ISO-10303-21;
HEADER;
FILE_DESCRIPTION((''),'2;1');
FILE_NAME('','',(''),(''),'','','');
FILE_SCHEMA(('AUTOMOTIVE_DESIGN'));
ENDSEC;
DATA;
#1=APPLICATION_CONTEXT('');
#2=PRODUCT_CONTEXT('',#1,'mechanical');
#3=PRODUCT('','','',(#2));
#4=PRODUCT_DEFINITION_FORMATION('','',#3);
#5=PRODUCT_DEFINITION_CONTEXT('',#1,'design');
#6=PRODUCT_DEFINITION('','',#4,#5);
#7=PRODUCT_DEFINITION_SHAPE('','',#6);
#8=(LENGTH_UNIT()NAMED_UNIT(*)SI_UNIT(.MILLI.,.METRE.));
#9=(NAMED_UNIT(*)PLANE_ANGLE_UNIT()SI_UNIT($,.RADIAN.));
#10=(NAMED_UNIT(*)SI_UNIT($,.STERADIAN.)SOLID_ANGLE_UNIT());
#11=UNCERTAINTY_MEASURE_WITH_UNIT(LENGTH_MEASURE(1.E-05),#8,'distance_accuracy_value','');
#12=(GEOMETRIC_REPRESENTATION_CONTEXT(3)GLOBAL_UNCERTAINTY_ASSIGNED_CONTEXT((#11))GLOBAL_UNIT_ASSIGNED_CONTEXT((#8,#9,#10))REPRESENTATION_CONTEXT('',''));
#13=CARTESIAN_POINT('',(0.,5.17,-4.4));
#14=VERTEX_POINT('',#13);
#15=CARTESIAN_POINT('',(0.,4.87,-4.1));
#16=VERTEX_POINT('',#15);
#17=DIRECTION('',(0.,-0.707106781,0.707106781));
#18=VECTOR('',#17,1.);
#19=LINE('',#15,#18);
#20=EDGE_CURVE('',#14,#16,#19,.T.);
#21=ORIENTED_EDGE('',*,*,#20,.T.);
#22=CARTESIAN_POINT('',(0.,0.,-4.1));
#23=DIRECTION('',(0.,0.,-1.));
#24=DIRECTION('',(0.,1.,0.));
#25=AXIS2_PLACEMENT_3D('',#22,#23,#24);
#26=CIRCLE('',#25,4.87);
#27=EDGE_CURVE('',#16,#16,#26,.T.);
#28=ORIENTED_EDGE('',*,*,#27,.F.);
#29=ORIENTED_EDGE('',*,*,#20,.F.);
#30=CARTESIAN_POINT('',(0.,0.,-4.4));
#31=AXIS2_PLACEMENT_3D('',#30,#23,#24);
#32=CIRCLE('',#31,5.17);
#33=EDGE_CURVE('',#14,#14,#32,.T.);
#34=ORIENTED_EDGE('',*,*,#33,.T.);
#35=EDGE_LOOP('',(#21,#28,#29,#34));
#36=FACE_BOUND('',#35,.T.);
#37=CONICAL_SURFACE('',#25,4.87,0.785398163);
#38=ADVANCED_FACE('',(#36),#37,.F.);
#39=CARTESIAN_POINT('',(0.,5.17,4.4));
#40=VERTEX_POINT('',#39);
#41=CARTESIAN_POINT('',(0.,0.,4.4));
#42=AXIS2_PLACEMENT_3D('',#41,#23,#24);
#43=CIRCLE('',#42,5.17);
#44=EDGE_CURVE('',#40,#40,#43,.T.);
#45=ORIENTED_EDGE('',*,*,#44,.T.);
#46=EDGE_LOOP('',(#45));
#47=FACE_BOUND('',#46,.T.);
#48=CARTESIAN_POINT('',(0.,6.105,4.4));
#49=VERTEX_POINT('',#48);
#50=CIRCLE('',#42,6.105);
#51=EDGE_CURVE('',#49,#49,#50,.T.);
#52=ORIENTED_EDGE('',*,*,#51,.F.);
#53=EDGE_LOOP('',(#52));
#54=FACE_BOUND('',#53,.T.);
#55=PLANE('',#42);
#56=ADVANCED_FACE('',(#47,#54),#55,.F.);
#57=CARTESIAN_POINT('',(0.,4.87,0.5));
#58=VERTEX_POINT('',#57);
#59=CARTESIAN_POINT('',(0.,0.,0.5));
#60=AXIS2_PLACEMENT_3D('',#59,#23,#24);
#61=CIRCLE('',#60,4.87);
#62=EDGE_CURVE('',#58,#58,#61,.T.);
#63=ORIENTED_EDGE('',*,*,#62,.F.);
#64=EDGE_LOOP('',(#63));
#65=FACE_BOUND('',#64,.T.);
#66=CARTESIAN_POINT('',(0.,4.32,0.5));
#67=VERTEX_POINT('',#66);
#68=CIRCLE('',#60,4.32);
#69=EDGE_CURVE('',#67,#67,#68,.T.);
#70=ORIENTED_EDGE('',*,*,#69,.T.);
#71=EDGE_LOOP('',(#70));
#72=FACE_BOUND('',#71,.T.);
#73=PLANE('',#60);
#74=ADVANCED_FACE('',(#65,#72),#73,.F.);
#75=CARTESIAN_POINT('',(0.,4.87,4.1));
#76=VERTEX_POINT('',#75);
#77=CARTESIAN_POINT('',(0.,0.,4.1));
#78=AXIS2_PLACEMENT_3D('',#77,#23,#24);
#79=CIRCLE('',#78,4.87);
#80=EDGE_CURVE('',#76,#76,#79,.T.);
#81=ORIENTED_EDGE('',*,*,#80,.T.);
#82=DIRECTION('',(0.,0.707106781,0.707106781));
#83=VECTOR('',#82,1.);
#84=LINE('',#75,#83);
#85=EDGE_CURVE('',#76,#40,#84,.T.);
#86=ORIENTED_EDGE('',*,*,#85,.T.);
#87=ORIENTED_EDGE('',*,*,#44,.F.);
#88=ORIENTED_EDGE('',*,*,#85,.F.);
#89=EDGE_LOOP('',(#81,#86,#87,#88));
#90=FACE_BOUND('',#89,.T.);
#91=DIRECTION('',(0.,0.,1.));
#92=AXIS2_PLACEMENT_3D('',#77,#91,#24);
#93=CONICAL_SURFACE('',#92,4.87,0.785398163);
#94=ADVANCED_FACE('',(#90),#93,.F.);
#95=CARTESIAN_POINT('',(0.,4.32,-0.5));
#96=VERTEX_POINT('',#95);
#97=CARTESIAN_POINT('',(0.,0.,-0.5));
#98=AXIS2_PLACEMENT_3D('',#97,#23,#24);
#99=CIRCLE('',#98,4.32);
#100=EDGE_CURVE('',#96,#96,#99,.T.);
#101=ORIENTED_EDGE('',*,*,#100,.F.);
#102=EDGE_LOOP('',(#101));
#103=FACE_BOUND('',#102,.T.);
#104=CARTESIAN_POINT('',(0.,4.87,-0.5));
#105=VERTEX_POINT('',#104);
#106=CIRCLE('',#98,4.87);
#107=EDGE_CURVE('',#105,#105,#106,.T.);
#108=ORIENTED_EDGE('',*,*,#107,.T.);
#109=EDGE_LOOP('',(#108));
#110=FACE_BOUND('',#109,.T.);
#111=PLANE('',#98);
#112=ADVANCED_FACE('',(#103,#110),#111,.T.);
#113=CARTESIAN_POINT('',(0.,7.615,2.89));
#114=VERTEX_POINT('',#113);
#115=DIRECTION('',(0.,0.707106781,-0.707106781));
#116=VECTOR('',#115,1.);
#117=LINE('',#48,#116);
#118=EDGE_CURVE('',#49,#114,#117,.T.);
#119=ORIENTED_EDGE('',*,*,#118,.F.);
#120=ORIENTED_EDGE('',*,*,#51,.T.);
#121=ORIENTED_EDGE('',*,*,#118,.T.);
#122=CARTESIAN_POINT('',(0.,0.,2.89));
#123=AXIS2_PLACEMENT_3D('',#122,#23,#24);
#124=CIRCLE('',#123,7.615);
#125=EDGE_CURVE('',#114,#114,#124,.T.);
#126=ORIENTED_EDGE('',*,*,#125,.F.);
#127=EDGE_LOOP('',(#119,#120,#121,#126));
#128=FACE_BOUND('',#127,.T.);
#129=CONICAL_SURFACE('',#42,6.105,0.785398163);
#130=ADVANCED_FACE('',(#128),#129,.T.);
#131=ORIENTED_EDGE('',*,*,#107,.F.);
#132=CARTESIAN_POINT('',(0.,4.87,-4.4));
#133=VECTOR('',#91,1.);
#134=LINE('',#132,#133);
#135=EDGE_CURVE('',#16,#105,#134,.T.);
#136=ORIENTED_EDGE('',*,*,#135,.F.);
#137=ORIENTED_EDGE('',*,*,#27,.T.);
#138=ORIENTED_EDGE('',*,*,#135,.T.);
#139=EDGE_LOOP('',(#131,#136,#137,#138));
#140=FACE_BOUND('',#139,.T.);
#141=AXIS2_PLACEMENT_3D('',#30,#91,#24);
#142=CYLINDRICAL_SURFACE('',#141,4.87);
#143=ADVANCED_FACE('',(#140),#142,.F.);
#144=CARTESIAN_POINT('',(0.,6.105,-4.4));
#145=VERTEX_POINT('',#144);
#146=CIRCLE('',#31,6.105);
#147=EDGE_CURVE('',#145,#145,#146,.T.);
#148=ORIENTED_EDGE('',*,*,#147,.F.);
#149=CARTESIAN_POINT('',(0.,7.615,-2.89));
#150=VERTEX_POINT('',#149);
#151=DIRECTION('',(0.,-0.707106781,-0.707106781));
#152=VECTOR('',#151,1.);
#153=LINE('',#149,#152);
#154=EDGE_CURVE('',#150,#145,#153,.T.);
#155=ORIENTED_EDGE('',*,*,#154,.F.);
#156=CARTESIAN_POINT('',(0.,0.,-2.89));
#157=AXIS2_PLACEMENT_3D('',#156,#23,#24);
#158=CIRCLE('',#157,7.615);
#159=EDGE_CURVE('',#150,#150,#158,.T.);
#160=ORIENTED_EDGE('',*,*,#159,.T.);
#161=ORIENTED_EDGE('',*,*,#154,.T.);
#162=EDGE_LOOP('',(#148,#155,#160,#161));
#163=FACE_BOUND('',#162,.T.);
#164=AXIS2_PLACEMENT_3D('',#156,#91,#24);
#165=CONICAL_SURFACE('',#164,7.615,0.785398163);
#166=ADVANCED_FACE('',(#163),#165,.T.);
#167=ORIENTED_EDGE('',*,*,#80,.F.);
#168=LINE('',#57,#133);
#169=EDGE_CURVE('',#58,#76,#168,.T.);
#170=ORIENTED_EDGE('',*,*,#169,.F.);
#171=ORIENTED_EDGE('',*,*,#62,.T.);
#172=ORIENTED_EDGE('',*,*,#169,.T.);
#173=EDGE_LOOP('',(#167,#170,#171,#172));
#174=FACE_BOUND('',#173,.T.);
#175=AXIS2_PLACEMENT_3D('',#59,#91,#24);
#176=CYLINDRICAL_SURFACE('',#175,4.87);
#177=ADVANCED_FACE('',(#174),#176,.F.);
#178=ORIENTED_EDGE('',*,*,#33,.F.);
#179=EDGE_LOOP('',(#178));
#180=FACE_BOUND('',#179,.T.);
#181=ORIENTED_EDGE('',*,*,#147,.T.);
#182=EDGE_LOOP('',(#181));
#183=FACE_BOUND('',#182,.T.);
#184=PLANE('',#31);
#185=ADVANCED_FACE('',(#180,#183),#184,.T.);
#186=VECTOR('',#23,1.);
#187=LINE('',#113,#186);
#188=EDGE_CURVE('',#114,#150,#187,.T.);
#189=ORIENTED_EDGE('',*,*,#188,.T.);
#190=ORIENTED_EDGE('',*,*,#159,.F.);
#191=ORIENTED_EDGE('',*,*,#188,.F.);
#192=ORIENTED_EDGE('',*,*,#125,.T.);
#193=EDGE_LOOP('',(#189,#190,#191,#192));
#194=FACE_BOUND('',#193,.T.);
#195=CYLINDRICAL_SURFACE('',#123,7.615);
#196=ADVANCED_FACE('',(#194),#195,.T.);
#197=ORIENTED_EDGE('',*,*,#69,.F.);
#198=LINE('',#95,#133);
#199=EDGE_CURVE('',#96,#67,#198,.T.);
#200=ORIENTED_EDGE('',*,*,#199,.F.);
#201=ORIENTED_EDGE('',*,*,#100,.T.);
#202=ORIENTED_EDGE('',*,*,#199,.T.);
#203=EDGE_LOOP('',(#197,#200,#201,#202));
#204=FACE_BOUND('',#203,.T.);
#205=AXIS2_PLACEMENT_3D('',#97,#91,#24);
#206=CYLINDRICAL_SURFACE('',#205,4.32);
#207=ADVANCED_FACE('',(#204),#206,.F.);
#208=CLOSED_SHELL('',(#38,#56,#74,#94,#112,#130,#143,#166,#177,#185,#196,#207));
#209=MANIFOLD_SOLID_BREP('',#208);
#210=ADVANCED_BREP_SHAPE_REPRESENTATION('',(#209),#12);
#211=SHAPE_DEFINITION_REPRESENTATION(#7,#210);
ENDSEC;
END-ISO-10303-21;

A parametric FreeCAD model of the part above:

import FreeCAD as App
import Part
import Sketcher
from FreeCAD import Vector


def edges_at(feature, points):
    """Names of the edges that pass closest to the given points."""
    edges = feature.Shape.Edges
    near = lambda p: min(range(len(edges)), key=lambda i: edges[i].distToShape(Part.Vertex(*p))[0])
    return sorted({f"Edge{near(p) + 1}" for p in points})


def add_polygon(sketch, points):
    """Adds a closed chain of lines whose ends are joined by coincident constraints."""
    first, n = sketch.GeometryCount, len(points)
    for a, b in zip(points, points[1:] + points[:1]):
        sketch.addGeometry(Part.LineSegment(App.Vector(*a, 0), App.Vector(*b, 0)), False)
    for i in range(n):
        sketch.addConstraint(Sketcher.Constraint("Coincident", first + i, 2, first + (i + 1) % n, 1))

doc = App.newDocument("Part")
body = doc.addObject("PartDesign::Body", "Body")

# Sketch on YZ plane
sketch1 = doc.addObject("Sketcher::SketchObject", "Sketch")
body.addObject(sketch1)
sketch1.AttachmentSupport = (doc.YZ_Plane, [""])
sketch1.MapMode = "FlatFace"
add_polygon(sketch1, [(4.32, 0.5), (4.32, -0.5), (4.87, -0.5), (4.87, -4.4), (6.105, -4.4), (7.615, -2.89), (7.615, 2.89), (6.105, 4.4), (4.87, 4.4), (4.87, 0.5)])  # lines 0-9
sketch1.addConstraint(Sketcher.Constraint("Vertical", 0))
sketch1.addConstraint(Sketcher.Constraint("Horizontal", 1))
sketch1.addConstraint(Sketcher.Constraint("Vertical", 2))
sketch1.addConstraint(Sketcher.Constraint("Horizontal", 3))
sketch1.addConstraint(Sketcher.Constraint("Vertical", 5))
sketch1.addConstraint(Sketcher.Constraint("Horizontal", 7))
sketch1.addConstraint(Sketcher.Constraint("Vertical", 8))
sketch1.addConstraint(Sketcher.Constraint("Horizontal", 9))
sketch1.addConstraint(Sketcher.Constraint("Symmetric", 3, 2, 6, 2, -1))
sketch1.addConstraint(Sketcher.Constraint("Symmetric", 1, 2, 8, 2, -1))
sketch1.addConstraint(Sketcher.Constraint("Perpendicular", 4, 6))
sketch1.addConstraint(Sketcher.Constraint("Equal", 4, 6))
sketch1.addConstraint(Sketcher.Constraint("DistanceY", 0, 2, 0, 1, 1.0))
sketch1.addConstraint(Sketcher.Constraint("DistanceY", 2, 2, 2, 1, 3.9))
sketch1.addConstraint(Sketcher.Constraint("DistanceX", 1, 1, 1, 2, 0.55))
sketch1.addConstraint(Sketcher.Constraint("DistanceY", 5, 1, 5, 2, 5.78))
sketch1.addConstraint(Sketcher.Constraint("DistanceX", 3, 1, 3, 2, 1.235))
sketch1.addConstraint(Sketcher.Constraint("DistanceX", -1, 1, 0, 2, 4.32))
revolution = doc.addObject("PartDesign::Revolution", "Revolution")
body.addObject(revolution)
revolution.Profile = sketch1
revolution.ReferenceAxis = (sketch1, ["V_Axis"])
revolution.Angle = 360
doc.recompute()

chamfer = doc.addObject("PartDesign::Chamfer", "Chamfer")
body.addObject(chamfer)
chamfer.Base = (revolution, edges_at(revolution, [(0, -4.87, 4.4), (0, -4.87, -4.4)]))
chamfer.Size = 0.3

doc.recompute()
